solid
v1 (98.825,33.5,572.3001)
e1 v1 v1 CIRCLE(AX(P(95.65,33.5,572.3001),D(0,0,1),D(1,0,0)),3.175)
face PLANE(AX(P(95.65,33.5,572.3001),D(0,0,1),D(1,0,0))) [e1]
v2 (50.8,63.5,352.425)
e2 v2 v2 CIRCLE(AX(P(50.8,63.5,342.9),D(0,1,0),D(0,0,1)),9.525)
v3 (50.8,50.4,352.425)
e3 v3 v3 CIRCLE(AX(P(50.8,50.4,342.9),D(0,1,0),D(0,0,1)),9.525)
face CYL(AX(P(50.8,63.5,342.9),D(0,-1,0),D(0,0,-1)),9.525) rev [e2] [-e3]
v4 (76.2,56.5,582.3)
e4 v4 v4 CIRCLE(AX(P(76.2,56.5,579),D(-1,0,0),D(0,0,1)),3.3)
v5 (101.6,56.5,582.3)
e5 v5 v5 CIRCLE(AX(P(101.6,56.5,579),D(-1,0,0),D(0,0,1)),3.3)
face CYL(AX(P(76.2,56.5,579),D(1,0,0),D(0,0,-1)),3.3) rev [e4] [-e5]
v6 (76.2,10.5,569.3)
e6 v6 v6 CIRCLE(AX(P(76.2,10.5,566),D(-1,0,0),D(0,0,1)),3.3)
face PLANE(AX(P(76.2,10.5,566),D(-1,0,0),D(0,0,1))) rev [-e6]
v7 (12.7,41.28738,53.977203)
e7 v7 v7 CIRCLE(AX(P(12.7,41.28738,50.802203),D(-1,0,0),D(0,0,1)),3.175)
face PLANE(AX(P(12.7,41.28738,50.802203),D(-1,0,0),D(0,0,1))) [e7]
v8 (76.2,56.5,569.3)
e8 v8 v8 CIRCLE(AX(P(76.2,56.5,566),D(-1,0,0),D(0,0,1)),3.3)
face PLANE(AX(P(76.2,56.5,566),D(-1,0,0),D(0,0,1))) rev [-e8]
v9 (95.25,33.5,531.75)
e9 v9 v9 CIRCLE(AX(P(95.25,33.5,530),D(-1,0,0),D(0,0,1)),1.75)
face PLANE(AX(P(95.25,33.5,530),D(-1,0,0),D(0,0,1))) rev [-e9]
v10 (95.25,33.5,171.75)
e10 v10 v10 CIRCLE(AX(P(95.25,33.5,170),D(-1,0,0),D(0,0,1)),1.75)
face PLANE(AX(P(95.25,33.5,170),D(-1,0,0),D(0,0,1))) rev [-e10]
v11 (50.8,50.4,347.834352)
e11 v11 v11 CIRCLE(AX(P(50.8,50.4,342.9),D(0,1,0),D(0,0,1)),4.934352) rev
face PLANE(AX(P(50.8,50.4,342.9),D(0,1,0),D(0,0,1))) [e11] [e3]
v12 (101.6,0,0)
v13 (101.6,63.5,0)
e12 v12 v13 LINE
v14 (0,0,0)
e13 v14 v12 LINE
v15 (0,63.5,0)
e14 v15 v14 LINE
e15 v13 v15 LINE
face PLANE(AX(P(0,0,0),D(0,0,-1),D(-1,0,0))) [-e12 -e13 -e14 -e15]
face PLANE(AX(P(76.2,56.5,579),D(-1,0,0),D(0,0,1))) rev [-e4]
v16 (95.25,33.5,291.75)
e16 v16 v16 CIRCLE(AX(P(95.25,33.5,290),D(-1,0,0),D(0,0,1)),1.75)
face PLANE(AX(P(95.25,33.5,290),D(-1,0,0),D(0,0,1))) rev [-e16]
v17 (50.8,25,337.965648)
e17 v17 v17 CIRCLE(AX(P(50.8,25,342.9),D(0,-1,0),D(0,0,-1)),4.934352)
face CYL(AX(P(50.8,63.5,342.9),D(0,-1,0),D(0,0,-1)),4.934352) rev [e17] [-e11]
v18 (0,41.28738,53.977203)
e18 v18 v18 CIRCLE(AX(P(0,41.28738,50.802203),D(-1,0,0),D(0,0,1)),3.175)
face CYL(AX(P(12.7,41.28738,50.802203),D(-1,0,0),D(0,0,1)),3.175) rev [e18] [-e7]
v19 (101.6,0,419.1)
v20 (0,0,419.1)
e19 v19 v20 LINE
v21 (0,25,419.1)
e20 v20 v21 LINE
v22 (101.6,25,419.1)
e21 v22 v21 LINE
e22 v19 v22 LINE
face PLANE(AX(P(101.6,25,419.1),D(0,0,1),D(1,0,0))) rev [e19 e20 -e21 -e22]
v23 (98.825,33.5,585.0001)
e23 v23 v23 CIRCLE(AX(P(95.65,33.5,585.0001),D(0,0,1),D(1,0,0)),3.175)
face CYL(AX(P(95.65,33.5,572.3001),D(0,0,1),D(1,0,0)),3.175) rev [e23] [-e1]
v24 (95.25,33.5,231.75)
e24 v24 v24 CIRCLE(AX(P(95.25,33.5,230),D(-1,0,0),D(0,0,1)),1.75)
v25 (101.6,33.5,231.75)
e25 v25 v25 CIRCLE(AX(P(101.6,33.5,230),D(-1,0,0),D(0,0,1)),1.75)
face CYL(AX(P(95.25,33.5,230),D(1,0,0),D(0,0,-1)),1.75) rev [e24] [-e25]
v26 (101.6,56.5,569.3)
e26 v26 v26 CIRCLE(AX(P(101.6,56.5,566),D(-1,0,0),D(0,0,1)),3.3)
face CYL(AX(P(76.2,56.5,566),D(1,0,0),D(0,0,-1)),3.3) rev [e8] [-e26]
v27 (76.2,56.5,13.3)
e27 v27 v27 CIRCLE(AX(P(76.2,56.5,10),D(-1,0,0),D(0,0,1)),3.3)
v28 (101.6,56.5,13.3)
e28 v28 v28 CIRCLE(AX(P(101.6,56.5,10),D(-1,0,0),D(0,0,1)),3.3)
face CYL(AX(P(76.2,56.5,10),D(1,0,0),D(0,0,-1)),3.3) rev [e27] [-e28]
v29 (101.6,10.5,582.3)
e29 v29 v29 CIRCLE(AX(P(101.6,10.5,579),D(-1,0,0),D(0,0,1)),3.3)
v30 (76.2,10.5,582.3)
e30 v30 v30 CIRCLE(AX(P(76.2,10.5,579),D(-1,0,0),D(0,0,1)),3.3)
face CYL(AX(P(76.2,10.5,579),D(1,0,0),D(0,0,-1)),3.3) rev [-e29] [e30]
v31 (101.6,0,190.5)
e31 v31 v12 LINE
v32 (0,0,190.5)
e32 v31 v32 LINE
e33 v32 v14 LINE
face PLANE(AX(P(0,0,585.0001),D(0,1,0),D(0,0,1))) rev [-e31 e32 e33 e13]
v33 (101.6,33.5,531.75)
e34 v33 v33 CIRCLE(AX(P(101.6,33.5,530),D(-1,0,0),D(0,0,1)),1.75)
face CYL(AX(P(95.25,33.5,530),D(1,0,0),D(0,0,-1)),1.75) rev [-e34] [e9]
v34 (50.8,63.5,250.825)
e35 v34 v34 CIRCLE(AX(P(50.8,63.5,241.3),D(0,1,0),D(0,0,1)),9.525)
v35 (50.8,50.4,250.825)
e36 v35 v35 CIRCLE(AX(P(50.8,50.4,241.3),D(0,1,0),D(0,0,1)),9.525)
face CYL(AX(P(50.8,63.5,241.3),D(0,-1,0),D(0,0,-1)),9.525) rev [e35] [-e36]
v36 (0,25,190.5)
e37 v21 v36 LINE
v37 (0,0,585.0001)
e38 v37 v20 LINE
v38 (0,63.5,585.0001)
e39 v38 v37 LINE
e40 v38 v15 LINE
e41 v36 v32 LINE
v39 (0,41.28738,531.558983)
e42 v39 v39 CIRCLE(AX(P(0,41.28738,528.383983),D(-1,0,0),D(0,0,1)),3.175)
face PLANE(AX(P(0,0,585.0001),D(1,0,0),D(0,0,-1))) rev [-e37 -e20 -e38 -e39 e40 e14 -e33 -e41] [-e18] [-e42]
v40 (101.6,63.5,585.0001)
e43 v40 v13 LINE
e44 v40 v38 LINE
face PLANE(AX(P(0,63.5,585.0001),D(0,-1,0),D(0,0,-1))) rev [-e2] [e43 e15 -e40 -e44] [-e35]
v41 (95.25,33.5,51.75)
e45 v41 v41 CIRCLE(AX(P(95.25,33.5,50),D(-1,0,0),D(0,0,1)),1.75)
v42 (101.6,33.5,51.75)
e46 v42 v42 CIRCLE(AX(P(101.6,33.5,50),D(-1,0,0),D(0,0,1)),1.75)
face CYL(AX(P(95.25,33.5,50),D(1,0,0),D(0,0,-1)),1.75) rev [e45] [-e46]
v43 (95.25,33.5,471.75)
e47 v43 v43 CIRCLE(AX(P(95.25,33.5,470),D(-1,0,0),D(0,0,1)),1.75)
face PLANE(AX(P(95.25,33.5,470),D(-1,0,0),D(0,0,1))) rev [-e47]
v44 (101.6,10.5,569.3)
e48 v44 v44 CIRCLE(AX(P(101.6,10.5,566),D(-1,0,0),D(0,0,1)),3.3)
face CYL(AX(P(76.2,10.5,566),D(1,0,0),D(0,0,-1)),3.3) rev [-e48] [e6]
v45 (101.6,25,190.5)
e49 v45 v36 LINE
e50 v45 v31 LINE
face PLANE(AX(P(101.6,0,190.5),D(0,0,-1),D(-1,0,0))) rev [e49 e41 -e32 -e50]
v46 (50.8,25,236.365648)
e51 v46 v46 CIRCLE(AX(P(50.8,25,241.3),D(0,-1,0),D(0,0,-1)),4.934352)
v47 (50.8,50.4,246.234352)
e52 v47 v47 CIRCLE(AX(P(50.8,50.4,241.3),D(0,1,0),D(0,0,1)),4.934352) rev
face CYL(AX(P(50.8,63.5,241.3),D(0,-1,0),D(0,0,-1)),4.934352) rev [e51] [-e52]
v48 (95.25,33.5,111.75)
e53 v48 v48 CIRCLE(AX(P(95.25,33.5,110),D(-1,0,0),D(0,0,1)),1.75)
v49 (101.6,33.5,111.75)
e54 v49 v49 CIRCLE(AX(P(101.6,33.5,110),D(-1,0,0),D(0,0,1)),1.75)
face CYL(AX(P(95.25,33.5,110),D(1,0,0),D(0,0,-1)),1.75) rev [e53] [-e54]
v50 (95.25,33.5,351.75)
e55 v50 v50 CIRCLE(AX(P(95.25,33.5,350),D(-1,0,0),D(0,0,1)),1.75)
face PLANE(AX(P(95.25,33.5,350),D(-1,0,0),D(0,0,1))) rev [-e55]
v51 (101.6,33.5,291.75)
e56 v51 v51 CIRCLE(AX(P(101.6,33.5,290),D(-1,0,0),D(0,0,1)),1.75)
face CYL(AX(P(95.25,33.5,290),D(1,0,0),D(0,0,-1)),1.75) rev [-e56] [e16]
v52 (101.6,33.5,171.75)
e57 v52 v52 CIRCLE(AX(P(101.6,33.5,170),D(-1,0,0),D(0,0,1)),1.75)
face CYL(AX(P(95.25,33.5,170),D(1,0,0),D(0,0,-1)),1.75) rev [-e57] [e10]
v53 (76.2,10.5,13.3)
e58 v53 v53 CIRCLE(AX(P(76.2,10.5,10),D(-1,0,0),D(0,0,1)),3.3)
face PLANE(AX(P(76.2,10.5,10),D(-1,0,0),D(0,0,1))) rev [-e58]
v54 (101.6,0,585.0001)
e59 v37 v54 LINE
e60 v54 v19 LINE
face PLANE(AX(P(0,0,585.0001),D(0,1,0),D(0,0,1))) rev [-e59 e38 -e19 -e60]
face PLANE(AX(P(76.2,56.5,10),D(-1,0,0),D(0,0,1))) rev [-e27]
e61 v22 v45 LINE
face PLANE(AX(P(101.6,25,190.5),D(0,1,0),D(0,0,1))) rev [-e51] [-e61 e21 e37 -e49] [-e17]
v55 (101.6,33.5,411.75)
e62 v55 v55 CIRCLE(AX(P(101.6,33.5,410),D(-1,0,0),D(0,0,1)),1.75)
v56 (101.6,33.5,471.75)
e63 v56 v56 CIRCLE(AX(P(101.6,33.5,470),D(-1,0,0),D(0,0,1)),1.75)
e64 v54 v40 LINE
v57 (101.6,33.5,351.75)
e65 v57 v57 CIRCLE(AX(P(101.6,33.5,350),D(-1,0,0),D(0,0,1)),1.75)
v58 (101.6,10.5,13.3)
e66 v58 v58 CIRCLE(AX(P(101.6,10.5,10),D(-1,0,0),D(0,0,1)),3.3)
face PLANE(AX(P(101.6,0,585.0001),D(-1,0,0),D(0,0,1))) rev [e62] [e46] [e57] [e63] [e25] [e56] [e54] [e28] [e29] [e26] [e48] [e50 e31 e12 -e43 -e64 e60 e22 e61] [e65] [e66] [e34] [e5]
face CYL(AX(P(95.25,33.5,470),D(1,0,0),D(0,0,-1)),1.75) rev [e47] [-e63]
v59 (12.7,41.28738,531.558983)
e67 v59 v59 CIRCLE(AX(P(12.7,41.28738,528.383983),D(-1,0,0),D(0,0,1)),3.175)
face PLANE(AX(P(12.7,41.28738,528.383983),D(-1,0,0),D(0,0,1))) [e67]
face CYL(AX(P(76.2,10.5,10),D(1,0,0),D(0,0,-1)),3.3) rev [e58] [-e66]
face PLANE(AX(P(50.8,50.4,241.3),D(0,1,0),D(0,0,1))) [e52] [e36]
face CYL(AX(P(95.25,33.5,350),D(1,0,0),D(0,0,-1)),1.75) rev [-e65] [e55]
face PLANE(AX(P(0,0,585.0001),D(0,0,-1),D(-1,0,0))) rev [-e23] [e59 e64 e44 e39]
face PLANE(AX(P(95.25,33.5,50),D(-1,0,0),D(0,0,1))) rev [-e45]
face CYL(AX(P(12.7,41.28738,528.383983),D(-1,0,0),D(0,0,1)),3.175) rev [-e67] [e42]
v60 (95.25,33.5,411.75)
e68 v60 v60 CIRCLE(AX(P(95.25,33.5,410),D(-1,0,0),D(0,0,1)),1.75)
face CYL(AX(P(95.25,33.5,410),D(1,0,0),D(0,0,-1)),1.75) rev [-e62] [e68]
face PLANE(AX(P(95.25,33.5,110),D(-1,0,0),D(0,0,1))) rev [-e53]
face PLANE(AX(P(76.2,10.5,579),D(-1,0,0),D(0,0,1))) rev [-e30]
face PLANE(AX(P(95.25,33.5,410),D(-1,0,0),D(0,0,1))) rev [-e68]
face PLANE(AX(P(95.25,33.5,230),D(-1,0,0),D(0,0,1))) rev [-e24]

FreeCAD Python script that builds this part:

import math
import FreeCAD as App
import Part
import Sketcher
from FreeCAD import Vector
Q = App.Units.Quantity


def add_polygon(sketch, points):
    """Adds a closed chain of lines whose ends are joined by coincident constraints."""
    first, n = sketch.GeometryCount, len(points)
    for a, b in zip(points, points[1:] + points[:1]):
        sketch.addGeometry(Part.LineSegment(App.Vector(*a, 0), App.Vector(*b, 0)), False)
    for i in range(n):
        sketch.addConstraint(Sketcher.Constraint("Coincident", first + i, 2, first + (i + 1) % n, 1))

doc = App.newDocument("Part")
body = doc.addObject("PartDesign::Body", "Body")

sketch1 = body.newObject("Sketcher::SketchObject", "Sketch")
sketch1.AttachmentSupport = (doc.getObject("XY_Plane"), [""])
sketch1.MapMode = "FlatFace"
add_polygon(sketch1, [(0, 63.5), (0, 0), (101.6, 0), (101.6, 63.5)])
sketch1.addConstraint(Sketcher.Constraint("Vertical", 0))
sketch1.addConstraint(Sketcher.Constraint("Horizontal", 1))
sketch1.addConstraint(Sketcher.Constraint("Vertical", 2))
sketch1.addConstraint(Sketcher.Constraint("Horizontal", 3))
sketch1.addConstraint(Sketcher.Constraint("Coincident", 0, 2, -1, 1))
sketch1.addConstraint(Sketcher.Constraint("DistanceX", 1, 1, 1, 2, Q("4 in")))
sketch1.addConstraint(Sketcher.Constraint("DistanceY", 0, 2, 0, 1, Q("2.5 in")))
pad1 = body.newObject("PartDesign::Pad", "Pad")
pad1.Profile = sketch1
pad1.Length = Q("23.0315 in")

sketch2 = body.newObject("Sketcher::SketchObject", "Sketch001")
sketch2.AttachmentSupport = (doc.getObject("YZ_Plane"), [""])
sketch2.MapMode = "FlatFace"
add_polygon(sketch2, [(25, 190.5), (0, 190.5), (0, 419.1), (25, 419.1)])
sketch2.addConstraint(Sketcher.Constraint("Horizontal", 0))
sketch2.addConstraint(Sketcher.Constraint("Vertical", 1))
sketch2.addConstraint(Sketcher.Constraint("Horizontal", 2))
sketch2.addConstraint(Sketcher.Constraint("Vertical", 3))
sketch2.addConstraint(Sketcher.Constraint("PointOnObject", 0, 2, -2))
sketch2.addConstraint(Sketcher.Constraint("DistanceY", 1, 1, 1, 2, Q("9 in")))
sketch2.addConstraint(Sketcher.Constraint("DistanceY", -1, 1, 0, 2, Q("7.5 in")))
sketch2.addConstraint(Sketcher.Constraint("DistanceX", 0, 2, 0, 1, 25.0))
pocket1 = body.newObject("PartDesign::Pocket", "Pocket")
pocket1.Profile = sketch2
pocket1.Type = "ThroughAll"
pocket1.Reversed = True

sketch3 = body.newObject("Sketcher::SketchObject", "Sketch002")
sketch3.AttachmentSupport = (doc.getObject("YZ_Plane"), [""])
sketch3.MapMode = "FlatFace"
sketch3.AttachmentOffset = App.Placement(Vector(0, 0, 4 * 25.4), App.Rotation())
sketch3.addGeometry(Part.Circle(Vector(33.5, 170, 0), Vector(0, 0, 1), 1.75), False)
sketch3.addGeometry(Part.Circle(Vector(33.5, 110, 0), Vector(0, 0, 1), 1.75), False)
sketch3.addGeometry(Part.Circle(Vector(33.5, 50, 0), Vector(0, 0, 1), 1.75), False)
sketch3.addGeometry(Part.Circle(Vector(33.5, 530, 0), Vector(0, 0, 1), 1.75), False)
sketch3.addGeometry(Part.Circle(Vector(33.5, 470, 0), Vector(0, 0, 1), 1.75), False)
sketch3.addGeometry(Part.Circle(Vector(33.5, 410, 0), Vector(0, 0, 1), 1.75), False)
sketch3.addGeometry(Part.Circle(Vector(33.5, 350, 0), Vector(0, 0, 1), 1.75), False)
sketch3.addGeometry(Part.Circle(Vector(33.5, 290, 0), Vector(0, 0, 1), 1.75), False)
sketch3.addGeometry(Part.Circle(Vector(33.5, 230, 0), Vector(0, 0, 1), 1.75), False)
sketch3.addConstraint(Sketcher.Constraint("Equal", 0, 1))
sketch3.addConstraint(Sketcher.Constraint("Equal", 1, 2))
sketch3.addConstraint(Sketcher.Constraint("Equal", 2, 3))
sketch3.addConstraint(Sketcher.Constraint("Equal", 3, 4))
sketch3.addConstraint(Sketcher.Constraint("Equal", 4, 5))
sketch3.addConstraint(Sketcher.Constraint("Equal", 5, 6))
sketch3.addConstraint(Sketcher.Constraint("Equal", 6, 7))
sketch3.addConstraint(Sketcher.Constraint("Equal", 7, 8))
sketch3.addConstraint(Sketcher.Constraint("Vertical", 0, 3, 1, 3))
sketch3.addConstraint(Sketcher.Constraint("Vertical", 1, 3, 2, 3))
sketch3.addConstraint(Sketcher.Constraint("Vertical", 2, 3, 3, 3))
sketch3.addConstraint(Sketcher.Constraint("Vertical", 3, 3, 4, 3))
sketch3.addConstraint(Sketcher.Constraint("Vertical", 4, 3, 5, 3))
sketch3.addConstraint(Sketcher.Constraint("Vertical", 5, 3, 6, 3))
sketch3.addConstraint(Sketcher.Constraint("Vertical", 6, 3, 7, 3))
sketch3.addConstraint(Sketcher.Constraint("Vertical", 7, 3, 8, 3))
sketch3.addConstraint(Sketcher.Constraint("Diameter", 0, 3.5))
sketch3.addConstraint(Sketcher.Constraint("DistanceX", -1, 1, 0, 3, 33.5))
sketch3.addConstraint(Sketcher.Constraint("DistanceY", -1, 1, 0, 3, 170.0))
sketch3.addConstraint(Sketcher.Constraint("DistanceY", -1, 1, 1, 3, 110.0))
sketch3.addConstraint(Sketcher.Constraint("DistanceY", -1, 1, 2, 3, 50.0))
sketch3.addConstraint(Sketcher.Constraint("DistanceY", -1, 1, 3, 3, 530.0))
sketch3.addConstraint(Sketcher.Constraint("DistanceY", -1, 1, 4, 3, 470.0))
sketch3.addConstraint(Sketcher.Constraint("DistanceY", -1, 1, 5, 3, 410.0))
sketch3.addConstraint(Sketcher.Constraint("DistanceY", -1, 1, 6, 3, 350.0))
sketch3.addConstraint(Sketcher.Constraint("DistanceY", -1, 1, 7, 3, 290.0))
sketch3.addConstraint(Sketcher.Constraint("DistanceY", -1, 1, 8, 3, 230.0))
pocket2 = body.newObject("PartDesign::Pocket", "Pocket001")
pocket2.Profile = sketch3
pocket2.Length = Q("0.25 in")

sketch4 = body.newObject("Sketcher::SketchObject", "Sketch003")
sketch4.AttachmentSupport = (doc.getObject("YZ_Plane"), [""])
sketch4.MapMode = "FlatFace"
sketch4.AttachmentOffset = App.Placement(Vector(0, 0, 4 * 25.4), App.Rotation())
sketch4.addGeometry(Part.Circle(Vector(10.5, 566, 0), Vector(0, 0, 1), 3.3), False)
sketch4.addGeometry(Part.Circle(Vector(10.5, 579, 0), Vector(0, 0, 1), 3.3), False)
sketch4.addGeometry(Part.Circle(Vector(56.5, 579, 0), Vector(0, 0, 1), 3.3), False)
sketch4.addGeometry(Part.Circle(Vector(56.5, 566, 0), Vector(0, 0, 1), 3.3), False)
sketch4.addGeometry(Part.Circle(Vector(10.5, 10, 0), Vector(0, 0, 1), 3.3), False)
sketch4.addGeometry(Part.Circle(Vector(56.5, 10, 0), Vector(0, 0, 1), 3.3), False)
sketch4.addConstraint(Sketcher.Constraint("Equal", 0, 1))
sketch4.addConstraint(Sketcher.Constraint("Equal", 1, 2))
sketch4.addConstraint(Sketcher.Constraint("Equal", 2, 3))
sketch4.addConstraint(Sketcher.Constraint("Equal", 3, 4))
sketch4.addConstraint(Sketcher.Constraint("Equal", 4, 5))
sketch4.addConstraint(Sketcher.Constraint("Horizontal", 1, 3, 2, 3))
sketch4.addConstraint(Sketcher.Constraint("Horizontal", 0, 3, 3, 3))
sketch4.addConstraint(Sketcher.Constraint("Horizontal", 4, 3, 5, 3))
sketch4.addConstraint(Sketcher.Constraint("Vertical", 0, 3, 1, 3))
sketch4.addConstraint(Sketcher.Constraint("Vertical", 2, 3, 3, 3))
sketch4.addConstraint(Sketcher.Constraint("Vertical", 1, 3, 4, 3))
sketch4.addConstraint(Sketcher.Constraint("Vertical", 3, 3, 5, 3))
sketch4.addConstraint(Sketcher.Constraint("Diameter", 0, 6.6))
sketch4.addConstraint(Sketcher.Constraint("DistanceX", -1, 1, 0, 3, 10.5))
sketch4.addConstraint(Sketcher.Constraint("DistanceY", -1, 1, 0, 3, 566.0))
sketch4.addConstraint(Sketcher.Constraint("DistanceY", -1, 1, 1, 3, 579.0))
sketch4.addConstraint(Sketcher.Constraint("DistanceX", -1, 1, 2, 3, 56.5))
sketch4.addConstraint(Sketcher.Constraint("DistanceY", -1, 1, 4, 3, 10.0))
pocket3 = body.newObject("PartDesign::Pocket", "Pocket002")
pocket3.Profile = sketch4
pocket3.Length = Q("1 in")

sketch5 = body.newObject("Sketcher::SketchObject", "Sketch004")
sketch5.AttachmentSupport = (doc.getObject("XZ_Plane"), [""])
sketch5.MapMode = "FlatFace"
sketch5.AttachmentOffset = App.Placement(Vector(0, 0, -25), App.Rotation())
sketch5.addGeometry(Part.Circle(Vector(50.8, 342.9, 0), Vector(0, 0, 1), 4.934352), False)
sketch5.addGeometry(Part.Circle(Vector(50.8, 241.3, 0), Vector(0, 0, 1), 4.934352), False)
sketch5.addConstraint(Sketcher.Constraint("Equal", 0, 1))
sketch5.addConstraint(Sketcher.Constraint("Vertical", 0, 3, 1, 3))
sketch5.addConstraint(Sketcher.Constraint("DistanceX", -1, 1, 0, 3, Q("2 in")))
sketch5.addConstraint(Sketcher.Constraint("DistanceY", 1, 3, 0, 3, Q("4 in")))
sketch5.addConstraint(Sketcher.Constraint("DistanceY", -1, 1, 0, 3, Q("13.5 in")))
sketch5.addConstraint(Sketcher.Constraint("Diameter", 0, 9.868704))
pocket4 = body.newObject("PartDesign::Pocket", "Pocket003")
pocket4.Profile = sketch5
pocket4.Type = "ThroughAll"

sketch6 = body.newObject("Sketcher::SketchObject", "Sketch005")
sketch6.AttachmentSupport = (doc.getObject("YZ_Plane"), [""])
sketch6.MapMode = "FlatFace"
sketch6.addGeometry(Part.ArcOfCircle(Part.Circle(Vector(41.28738, 528.383983, 0), Vector(0, 0, 1), 3.175), math.radians(120.118543), math.radians(239.881457)), False)
sketch6.addGeometry(Part.ArcOfCircle(Part.Circle(Vector(41.28738, 528.383983, 0), Vector(0, 0, 1), 3.175), math.radians(59.881457), math.radians(120.118543)), False)
sketch6.addGeometry(Part.ArcOfCircle(Part.Circle(Vector(41.28738, 528.383983, 0), Vector(0, 0, 1), 3.175), math.radians(-59.881457), math.radians(59.881457)), False)
sketch6.addGeometry(Part.ArcOfCircle(Part.Circle(Vector(41.28738, 528.383983, 0), Vector(0, 0, 1), 3.175), math.radians(-120.118543), math.radians(-59.881457)), False)
sketch6.addGeometry(Part.ArcOfCircle(Part.Circle(Vector(41.28738, 50.802203, 0), Vector(0, 0, 1), 3.175), math.radians(-59.881457), math.radians(59.881457)), False)
sketch6.addGeometry(Part.ArcOfCircle(Part.Circle(Vector(41.28738, 50.802203, 0), Vector(0, 0, 1), 3.175), math.radians(-120.118543), math.radians(-59.881457)), False)
sketch6.addGeometry(Part.ArcOfCircle(Part.Circle(Vector(41.28738, 50.802203, 0), Vector(0, 0, 1), 3.175), math.radians(120.118543), math.radians(239.881457)), False)
sketch6.addGeometry(Part.ArcOfCircle(Part.Circle(Vector(41.28738, 50.802203, 0), Vector(0, 0, 1), 3.175), math.radians(59.881457), math.radians(120.118543)), False)
sketch6.addConstraint(Sketcher.Constraint("Tangent", 0, 1, 1, 2))
sketch6.addConstraint(Sketcher.Constraint("Tangent", 1, 1, 2, 2))
sketch6.addConstraint(Sketcher.Constraint("Tangent", 2, 1, 3, 2))
sketch6.addConstraint(Sketcher.Constraint("Tangent", 3, 1, 0, 2))
sketch6.addConstraint(Sketcher.Constraint("Tangent", 4, 1, 5, 2))
sketch6.addConstraint(Sketcher.Constraint("Tangent", 5, 1, 6, 2))
sketch6.addConstraint(Sketcher.Constraint("Tangent", 6, 1, 7, 2))
sketch6.addConstraint(Sketcher.Constraint("Tangent", 7, 1, 4, 2))
sketch6.addConstraint(Sketcher.Constraint("Equal", 0, 1))
sketch6.addConstraint(Sketcher.Constraint("Equal", 3, 4))
sketch6.addConstraint(Sketcher.Constraint("Equal", 4, 5))
sketch6.addConstraint(Sketcher.Constraint("Horizontal", 0, 1, 1, 1))
sketch6.addConstraint(Sketcher.Constraint("Horizontal", 2, 1, 3, 1))
sketch6.addConstraint(Sketcher.Constraint("Horizontal", 4, 1, 5, 1))
sketch6.addConstraint(Sketcher.Constraint("Horizontal", 6, 1, 7, 1))
sketch6.addConstraint(Sketcher.Constraint("Vertical", 3, 3, 4, 3))
sketch6.addConstraint(Sketcher.Constraint("Vertical", 1, 1, 2, 1))
sketch6.addConstraint(Sketcher.Constraint("Vertical", 2, 1, 4, 1))
sketch6.addConstraint(Sketcher.Constraint("Vertical", 5, 1, 6, 1))
sketch6.addConstraint(Sketcher.Constraint("Radius", 0, Q("0.125 in")))
sketch6.addConstraint(Sketcher.Constraint("DistanceX", -1, 1, 0, 3, 41.28738))
sketch6.addConstraint(Sketcher.Constraint("DistanceY", 4, 3, 3, 3, 477.58178))
sketch6.addConstraint(Sketcher.Constraint("DistanceY", 1, 3, 0, 1, 2.74634))
sketch6.addConstraint(Sketcher.Constraint("DistanceY", -1, 1, 0, 3, 528.383983))
pocket5 = body.newObject("PartDesign::Pocket", "Pocket004")
pocket5.Profile = sketch6
pocket5.Length = Q("0.5 in")
pocket5.Reversed = True

sketch7 = body.newObject("Sketcher::SketchObject", "Sketch006")
sketch7.AttachmentSupport = (doc.getObject("XY_Plane"), [""])
sketch7.MapMode = "FlatFace"
sketch7.AttachmentOffset = App.Placement(Vector(0, 0, 23.0315 * 25.4), App.Rotation())
sketch7.addGeometry(Part.Circle(Vector(95.65, 33.5, 0), Vector(0, 0, 1), 3.175), False)
sketch7.addConstraint(Sketcher.Constraint("Diameter", 0, Q("0.25 in")))
sketch7.addConstraint(Sketcher.Constraint("DistanceX", -1, 1, 0, 3, 95.65))
sketch7.addConstraint(Sketcher.Constraint("DistanceY", -1, 1, 0, 3, 33.5))
pocket6 = body.newObject("PartDesign::Pocket", "Pocket005")
pocket6.Profile = sketch7
pocket6.Length = Q("0.5 in")

sketch8 = body.newObject("Sketcher::SketchObject", "Sketch007")
sketch8.AttachmentSupport = (doc.getObject("XZ_Plane"), [""])
sketch8.MapMode = "FlatFace"
sketch8.AttachmentOffset = App.Placement(Vector(0, 0, -50.4), App.Rotation())
sketch8.addGeometry(Part.Circle(Vector(50.8, 342.9, 0), Vector(0, 0, 1), 9.525), False)
sketch8.addGeometry(Part.Circle(Vector(50.8, 241.3, 0), Vector(0, 0, 1), 9.525), False)
sketch8.addConstraint(Sketcher.Constraint("Equal", 0, 1))
sketch8.addConstraint(Sketcher.Constraint("Vertical", 0, 3, 1, 3))
sketch8.addConstraint(Sketcher.Constraint("Diameter", 0, Q("0.75 in")))
sketch8.addConstraint(Sketcher.Constraint("DistanceX", -1, 1, 0, 3, Q("2 in")))
sketch8.addConstraint(Sketcher.Constraint("DistanceY", 1, 3, 0, 3, Q("4 in")))
sketch8.addConstraint(Sketcher.Constraint("DistanceY", -1, 1, 0, 3, Q("13.5 in")))
pocket7 = body.newObject("PartDesign::Pocket", "Pocket006")
pocket7.Profile = sketch8
pocket7.Type = "ThroughAll"

doc.recompute()
